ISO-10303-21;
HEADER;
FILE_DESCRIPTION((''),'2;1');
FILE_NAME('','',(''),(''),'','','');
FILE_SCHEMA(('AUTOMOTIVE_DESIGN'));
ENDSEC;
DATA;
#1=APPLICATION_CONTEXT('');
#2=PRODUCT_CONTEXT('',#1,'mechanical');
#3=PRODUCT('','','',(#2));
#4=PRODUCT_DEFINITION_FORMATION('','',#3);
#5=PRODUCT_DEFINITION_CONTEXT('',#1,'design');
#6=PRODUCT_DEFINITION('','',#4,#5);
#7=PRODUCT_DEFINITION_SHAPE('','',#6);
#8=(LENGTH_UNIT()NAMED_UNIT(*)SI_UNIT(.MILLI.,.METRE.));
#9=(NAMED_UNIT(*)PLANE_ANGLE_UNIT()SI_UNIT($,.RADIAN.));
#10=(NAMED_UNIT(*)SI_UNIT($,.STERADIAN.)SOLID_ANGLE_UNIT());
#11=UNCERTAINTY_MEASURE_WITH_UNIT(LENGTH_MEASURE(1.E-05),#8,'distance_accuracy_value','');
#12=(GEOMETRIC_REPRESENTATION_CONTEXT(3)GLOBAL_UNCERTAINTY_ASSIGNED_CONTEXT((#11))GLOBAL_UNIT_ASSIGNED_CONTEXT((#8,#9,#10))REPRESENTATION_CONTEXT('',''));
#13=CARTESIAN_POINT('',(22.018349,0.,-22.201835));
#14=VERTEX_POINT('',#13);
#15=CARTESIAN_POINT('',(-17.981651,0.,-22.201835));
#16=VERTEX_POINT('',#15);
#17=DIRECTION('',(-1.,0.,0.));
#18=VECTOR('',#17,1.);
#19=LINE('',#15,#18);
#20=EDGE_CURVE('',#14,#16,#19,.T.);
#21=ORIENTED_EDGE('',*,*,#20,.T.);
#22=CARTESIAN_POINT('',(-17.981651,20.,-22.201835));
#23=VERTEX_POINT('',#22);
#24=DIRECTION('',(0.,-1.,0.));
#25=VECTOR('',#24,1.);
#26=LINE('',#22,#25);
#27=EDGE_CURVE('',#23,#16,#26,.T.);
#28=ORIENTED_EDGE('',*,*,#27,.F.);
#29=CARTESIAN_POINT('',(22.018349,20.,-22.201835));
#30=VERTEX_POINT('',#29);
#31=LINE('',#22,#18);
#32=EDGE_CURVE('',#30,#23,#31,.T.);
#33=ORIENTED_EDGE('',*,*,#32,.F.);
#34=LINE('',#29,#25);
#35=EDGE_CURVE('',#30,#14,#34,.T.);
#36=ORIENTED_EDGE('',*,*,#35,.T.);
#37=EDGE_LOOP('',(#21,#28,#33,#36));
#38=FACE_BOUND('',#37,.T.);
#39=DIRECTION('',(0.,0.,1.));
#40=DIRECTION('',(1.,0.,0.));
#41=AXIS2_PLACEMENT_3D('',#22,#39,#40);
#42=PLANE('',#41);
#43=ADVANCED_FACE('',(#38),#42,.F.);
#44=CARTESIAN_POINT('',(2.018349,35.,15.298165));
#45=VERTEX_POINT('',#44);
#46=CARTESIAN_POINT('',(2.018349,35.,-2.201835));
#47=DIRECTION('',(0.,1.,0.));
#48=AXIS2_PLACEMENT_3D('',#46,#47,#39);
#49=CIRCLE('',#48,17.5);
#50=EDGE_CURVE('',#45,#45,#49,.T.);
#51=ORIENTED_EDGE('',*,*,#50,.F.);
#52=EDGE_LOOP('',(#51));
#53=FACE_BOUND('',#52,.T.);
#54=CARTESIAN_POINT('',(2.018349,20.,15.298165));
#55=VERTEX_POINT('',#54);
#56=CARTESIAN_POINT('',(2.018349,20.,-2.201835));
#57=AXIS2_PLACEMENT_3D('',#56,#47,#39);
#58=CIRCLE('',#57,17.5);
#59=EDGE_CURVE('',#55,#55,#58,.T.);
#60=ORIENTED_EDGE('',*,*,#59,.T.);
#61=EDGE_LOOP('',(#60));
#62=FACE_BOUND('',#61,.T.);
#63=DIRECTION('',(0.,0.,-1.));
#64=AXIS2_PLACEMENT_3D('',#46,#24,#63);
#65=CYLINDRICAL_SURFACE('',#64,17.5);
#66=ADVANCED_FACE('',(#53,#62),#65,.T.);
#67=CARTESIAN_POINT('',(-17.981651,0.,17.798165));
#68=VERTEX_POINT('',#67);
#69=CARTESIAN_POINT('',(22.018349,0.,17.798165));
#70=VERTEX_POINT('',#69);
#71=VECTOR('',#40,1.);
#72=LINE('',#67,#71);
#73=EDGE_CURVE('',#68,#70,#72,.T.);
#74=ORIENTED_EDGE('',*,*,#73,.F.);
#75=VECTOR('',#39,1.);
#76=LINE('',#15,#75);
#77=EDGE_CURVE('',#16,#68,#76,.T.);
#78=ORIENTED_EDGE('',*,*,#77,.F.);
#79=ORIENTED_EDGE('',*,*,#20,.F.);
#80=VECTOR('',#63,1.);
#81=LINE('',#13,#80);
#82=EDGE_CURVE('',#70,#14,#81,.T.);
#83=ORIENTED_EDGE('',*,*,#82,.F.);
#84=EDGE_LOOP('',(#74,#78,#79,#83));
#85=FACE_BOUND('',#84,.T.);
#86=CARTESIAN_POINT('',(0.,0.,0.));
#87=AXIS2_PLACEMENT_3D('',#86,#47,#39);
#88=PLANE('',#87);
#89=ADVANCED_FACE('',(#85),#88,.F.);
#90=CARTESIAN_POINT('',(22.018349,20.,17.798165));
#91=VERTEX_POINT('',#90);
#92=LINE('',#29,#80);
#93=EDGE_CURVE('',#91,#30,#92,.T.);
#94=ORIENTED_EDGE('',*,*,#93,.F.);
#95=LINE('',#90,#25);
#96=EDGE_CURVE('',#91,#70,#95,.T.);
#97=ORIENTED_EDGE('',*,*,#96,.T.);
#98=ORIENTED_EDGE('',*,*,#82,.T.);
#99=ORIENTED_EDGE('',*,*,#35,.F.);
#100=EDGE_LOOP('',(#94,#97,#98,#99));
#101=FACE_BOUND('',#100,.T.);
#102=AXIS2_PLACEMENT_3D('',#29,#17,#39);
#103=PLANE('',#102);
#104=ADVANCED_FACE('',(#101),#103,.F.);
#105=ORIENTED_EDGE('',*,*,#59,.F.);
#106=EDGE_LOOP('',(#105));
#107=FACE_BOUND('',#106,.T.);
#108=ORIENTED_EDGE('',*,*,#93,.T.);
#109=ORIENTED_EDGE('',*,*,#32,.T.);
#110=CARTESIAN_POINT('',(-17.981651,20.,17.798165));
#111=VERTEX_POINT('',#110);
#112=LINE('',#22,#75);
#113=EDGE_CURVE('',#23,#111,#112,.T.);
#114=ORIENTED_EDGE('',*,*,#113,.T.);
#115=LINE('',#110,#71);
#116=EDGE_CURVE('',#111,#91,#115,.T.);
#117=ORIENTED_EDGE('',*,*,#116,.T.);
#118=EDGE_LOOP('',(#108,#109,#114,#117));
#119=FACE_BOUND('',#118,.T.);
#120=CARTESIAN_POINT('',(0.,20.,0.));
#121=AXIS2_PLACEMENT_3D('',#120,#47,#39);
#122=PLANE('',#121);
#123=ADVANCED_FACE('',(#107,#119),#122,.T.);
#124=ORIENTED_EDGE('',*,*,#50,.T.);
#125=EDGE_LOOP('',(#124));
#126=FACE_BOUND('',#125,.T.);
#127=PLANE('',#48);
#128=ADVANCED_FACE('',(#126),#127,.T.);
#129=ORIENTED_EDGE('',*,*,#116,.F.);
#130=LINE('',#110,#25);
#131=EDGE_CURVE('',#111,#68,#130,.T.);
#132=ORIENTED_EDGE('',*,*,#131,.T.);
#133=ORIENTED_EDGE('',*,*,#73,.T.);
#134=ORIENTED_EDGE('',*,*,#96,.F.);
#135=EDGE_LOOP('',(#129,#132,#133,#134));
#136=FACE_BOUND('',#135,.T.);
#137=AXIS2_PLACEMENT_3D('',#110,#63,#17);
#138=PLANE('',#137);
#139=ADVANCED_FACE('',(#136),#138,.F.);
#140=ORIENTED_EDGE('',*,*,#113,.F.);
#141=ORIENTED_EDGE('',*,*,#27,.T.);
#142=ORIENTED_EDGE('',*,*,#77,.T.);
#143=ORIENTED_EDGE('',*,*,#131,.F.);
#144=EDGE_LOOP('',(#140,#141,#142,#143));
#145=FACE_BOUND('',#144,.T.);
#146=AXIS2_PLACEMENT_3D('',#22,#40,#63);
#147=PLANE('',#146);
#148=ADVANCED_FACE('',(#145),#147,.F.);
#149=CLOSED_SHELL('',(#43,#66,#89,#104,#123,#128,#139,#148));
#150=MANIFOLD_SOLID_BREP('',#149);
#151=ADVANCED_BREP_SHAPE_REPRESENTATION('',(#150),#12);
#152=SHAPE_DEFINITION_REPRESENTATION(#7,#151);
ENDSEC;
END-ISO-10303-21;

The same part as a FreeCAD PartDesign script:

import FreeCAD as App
import Part
import Sketcher
Q = App.Units.Quantity


def add_polygon(sketch, points):
    """Adds a closed chain of lines whose ends are joined by coincident constraints."""
    first, n = sketch.GeometryCount, len(points)
    for a, b in zip(points, points[1:] + points[:1]):
        sketch.addGeometry(Part.LineSegment(App.Vector(*a, 0), App.Vector(*b, 0)), False)
    for i in range(n):
        sketch.addConstraint(Sketcher.Constraint("Coincident", first + i, 2, first + (i + 1) % n, 1))

doc = App.newDocument("Part")
body = doc.addObject("PartDesign::Body", "Body")

sketch1 = doc.addObject("Sketcher::SketchObject", "Sketch")
body.addObject(sketch1)
sketch1.AttachmentSupport = (doc.XZ_Plane, [""])
sketch1.MapMode = "FlatFace"
add_polygon(sketch1, [(-18, -22), (-18, 18), (22, 18), (22, -22)])
sketch1.addConstraint(Sketcher.Constraint("Vertical", 0))
sketch1.addConstraint(Sketcher.Constraint("Horizontal", 1))
sketch1.addConstraint(Sketcher.Constraint("Vertical", 2))
sketch1.addConstraint(Sketcher.Constraint("Horizontal", 3))
sketch1.addConstraint(Sketcher.Constraint("Equal", 3, 0))
sketch1.addConstraint(Sketcher.Constraint("DistanceX", 1, 1, 1, 2, Q("40 mm")))
sketch1.addConstraint(Sketcher.Constraint("DistanceX", 0, 2, -1, 1, Q("17.981651 mm")))
sketch1.addConstraint(Sketcher.Constraint("DistanceY", -1, 1, 0, 2, Q("17.798165 mm")))
pad1 = doc.addObject("PartDesign::Pad", "Pad")
body.addObject(pad1)
pad1.Profile = sketch1
pad1.Length = 20
pad1.Reversed = True

sketch2 = doc.addObject("Sketcher::SketchObject", "Sketch001")
body.addObject(sketch2)
sketch2.AttachmentSupport = (doc.XZ_Plane, [""])
sketch2.MapMode = "FlatFace"
sketch2.AttachmentOffset = App.Placement(App.Vector(0, 0, -20), App.Rotation())
sketch2.addGeometry(Part.Circle(App.Vector(2, -2, 0), App.Vector(0, 0, 1), 18), False)
sketch2.addConstraint(Sketcher.Constraint("Diameter", 0, Q("35 mm")))
sketch2.addConstraint(Sketcher.Constraint("DistanceX", -1, 1, 0, 3, Q("2.018349 mm")))
sketch2.addConstraint(Sketcher.Constraint("DistanceY", 0, 3, -1, 1, Q("2.201835 mm")))
pad2 = doc.addObject("PartDesign::Pad", "Pad001")
body.addObject(pad2)
pad2.Profile = sketch2
pad2.Length = 15
pad2.Reversed = True

doc.recompute()
